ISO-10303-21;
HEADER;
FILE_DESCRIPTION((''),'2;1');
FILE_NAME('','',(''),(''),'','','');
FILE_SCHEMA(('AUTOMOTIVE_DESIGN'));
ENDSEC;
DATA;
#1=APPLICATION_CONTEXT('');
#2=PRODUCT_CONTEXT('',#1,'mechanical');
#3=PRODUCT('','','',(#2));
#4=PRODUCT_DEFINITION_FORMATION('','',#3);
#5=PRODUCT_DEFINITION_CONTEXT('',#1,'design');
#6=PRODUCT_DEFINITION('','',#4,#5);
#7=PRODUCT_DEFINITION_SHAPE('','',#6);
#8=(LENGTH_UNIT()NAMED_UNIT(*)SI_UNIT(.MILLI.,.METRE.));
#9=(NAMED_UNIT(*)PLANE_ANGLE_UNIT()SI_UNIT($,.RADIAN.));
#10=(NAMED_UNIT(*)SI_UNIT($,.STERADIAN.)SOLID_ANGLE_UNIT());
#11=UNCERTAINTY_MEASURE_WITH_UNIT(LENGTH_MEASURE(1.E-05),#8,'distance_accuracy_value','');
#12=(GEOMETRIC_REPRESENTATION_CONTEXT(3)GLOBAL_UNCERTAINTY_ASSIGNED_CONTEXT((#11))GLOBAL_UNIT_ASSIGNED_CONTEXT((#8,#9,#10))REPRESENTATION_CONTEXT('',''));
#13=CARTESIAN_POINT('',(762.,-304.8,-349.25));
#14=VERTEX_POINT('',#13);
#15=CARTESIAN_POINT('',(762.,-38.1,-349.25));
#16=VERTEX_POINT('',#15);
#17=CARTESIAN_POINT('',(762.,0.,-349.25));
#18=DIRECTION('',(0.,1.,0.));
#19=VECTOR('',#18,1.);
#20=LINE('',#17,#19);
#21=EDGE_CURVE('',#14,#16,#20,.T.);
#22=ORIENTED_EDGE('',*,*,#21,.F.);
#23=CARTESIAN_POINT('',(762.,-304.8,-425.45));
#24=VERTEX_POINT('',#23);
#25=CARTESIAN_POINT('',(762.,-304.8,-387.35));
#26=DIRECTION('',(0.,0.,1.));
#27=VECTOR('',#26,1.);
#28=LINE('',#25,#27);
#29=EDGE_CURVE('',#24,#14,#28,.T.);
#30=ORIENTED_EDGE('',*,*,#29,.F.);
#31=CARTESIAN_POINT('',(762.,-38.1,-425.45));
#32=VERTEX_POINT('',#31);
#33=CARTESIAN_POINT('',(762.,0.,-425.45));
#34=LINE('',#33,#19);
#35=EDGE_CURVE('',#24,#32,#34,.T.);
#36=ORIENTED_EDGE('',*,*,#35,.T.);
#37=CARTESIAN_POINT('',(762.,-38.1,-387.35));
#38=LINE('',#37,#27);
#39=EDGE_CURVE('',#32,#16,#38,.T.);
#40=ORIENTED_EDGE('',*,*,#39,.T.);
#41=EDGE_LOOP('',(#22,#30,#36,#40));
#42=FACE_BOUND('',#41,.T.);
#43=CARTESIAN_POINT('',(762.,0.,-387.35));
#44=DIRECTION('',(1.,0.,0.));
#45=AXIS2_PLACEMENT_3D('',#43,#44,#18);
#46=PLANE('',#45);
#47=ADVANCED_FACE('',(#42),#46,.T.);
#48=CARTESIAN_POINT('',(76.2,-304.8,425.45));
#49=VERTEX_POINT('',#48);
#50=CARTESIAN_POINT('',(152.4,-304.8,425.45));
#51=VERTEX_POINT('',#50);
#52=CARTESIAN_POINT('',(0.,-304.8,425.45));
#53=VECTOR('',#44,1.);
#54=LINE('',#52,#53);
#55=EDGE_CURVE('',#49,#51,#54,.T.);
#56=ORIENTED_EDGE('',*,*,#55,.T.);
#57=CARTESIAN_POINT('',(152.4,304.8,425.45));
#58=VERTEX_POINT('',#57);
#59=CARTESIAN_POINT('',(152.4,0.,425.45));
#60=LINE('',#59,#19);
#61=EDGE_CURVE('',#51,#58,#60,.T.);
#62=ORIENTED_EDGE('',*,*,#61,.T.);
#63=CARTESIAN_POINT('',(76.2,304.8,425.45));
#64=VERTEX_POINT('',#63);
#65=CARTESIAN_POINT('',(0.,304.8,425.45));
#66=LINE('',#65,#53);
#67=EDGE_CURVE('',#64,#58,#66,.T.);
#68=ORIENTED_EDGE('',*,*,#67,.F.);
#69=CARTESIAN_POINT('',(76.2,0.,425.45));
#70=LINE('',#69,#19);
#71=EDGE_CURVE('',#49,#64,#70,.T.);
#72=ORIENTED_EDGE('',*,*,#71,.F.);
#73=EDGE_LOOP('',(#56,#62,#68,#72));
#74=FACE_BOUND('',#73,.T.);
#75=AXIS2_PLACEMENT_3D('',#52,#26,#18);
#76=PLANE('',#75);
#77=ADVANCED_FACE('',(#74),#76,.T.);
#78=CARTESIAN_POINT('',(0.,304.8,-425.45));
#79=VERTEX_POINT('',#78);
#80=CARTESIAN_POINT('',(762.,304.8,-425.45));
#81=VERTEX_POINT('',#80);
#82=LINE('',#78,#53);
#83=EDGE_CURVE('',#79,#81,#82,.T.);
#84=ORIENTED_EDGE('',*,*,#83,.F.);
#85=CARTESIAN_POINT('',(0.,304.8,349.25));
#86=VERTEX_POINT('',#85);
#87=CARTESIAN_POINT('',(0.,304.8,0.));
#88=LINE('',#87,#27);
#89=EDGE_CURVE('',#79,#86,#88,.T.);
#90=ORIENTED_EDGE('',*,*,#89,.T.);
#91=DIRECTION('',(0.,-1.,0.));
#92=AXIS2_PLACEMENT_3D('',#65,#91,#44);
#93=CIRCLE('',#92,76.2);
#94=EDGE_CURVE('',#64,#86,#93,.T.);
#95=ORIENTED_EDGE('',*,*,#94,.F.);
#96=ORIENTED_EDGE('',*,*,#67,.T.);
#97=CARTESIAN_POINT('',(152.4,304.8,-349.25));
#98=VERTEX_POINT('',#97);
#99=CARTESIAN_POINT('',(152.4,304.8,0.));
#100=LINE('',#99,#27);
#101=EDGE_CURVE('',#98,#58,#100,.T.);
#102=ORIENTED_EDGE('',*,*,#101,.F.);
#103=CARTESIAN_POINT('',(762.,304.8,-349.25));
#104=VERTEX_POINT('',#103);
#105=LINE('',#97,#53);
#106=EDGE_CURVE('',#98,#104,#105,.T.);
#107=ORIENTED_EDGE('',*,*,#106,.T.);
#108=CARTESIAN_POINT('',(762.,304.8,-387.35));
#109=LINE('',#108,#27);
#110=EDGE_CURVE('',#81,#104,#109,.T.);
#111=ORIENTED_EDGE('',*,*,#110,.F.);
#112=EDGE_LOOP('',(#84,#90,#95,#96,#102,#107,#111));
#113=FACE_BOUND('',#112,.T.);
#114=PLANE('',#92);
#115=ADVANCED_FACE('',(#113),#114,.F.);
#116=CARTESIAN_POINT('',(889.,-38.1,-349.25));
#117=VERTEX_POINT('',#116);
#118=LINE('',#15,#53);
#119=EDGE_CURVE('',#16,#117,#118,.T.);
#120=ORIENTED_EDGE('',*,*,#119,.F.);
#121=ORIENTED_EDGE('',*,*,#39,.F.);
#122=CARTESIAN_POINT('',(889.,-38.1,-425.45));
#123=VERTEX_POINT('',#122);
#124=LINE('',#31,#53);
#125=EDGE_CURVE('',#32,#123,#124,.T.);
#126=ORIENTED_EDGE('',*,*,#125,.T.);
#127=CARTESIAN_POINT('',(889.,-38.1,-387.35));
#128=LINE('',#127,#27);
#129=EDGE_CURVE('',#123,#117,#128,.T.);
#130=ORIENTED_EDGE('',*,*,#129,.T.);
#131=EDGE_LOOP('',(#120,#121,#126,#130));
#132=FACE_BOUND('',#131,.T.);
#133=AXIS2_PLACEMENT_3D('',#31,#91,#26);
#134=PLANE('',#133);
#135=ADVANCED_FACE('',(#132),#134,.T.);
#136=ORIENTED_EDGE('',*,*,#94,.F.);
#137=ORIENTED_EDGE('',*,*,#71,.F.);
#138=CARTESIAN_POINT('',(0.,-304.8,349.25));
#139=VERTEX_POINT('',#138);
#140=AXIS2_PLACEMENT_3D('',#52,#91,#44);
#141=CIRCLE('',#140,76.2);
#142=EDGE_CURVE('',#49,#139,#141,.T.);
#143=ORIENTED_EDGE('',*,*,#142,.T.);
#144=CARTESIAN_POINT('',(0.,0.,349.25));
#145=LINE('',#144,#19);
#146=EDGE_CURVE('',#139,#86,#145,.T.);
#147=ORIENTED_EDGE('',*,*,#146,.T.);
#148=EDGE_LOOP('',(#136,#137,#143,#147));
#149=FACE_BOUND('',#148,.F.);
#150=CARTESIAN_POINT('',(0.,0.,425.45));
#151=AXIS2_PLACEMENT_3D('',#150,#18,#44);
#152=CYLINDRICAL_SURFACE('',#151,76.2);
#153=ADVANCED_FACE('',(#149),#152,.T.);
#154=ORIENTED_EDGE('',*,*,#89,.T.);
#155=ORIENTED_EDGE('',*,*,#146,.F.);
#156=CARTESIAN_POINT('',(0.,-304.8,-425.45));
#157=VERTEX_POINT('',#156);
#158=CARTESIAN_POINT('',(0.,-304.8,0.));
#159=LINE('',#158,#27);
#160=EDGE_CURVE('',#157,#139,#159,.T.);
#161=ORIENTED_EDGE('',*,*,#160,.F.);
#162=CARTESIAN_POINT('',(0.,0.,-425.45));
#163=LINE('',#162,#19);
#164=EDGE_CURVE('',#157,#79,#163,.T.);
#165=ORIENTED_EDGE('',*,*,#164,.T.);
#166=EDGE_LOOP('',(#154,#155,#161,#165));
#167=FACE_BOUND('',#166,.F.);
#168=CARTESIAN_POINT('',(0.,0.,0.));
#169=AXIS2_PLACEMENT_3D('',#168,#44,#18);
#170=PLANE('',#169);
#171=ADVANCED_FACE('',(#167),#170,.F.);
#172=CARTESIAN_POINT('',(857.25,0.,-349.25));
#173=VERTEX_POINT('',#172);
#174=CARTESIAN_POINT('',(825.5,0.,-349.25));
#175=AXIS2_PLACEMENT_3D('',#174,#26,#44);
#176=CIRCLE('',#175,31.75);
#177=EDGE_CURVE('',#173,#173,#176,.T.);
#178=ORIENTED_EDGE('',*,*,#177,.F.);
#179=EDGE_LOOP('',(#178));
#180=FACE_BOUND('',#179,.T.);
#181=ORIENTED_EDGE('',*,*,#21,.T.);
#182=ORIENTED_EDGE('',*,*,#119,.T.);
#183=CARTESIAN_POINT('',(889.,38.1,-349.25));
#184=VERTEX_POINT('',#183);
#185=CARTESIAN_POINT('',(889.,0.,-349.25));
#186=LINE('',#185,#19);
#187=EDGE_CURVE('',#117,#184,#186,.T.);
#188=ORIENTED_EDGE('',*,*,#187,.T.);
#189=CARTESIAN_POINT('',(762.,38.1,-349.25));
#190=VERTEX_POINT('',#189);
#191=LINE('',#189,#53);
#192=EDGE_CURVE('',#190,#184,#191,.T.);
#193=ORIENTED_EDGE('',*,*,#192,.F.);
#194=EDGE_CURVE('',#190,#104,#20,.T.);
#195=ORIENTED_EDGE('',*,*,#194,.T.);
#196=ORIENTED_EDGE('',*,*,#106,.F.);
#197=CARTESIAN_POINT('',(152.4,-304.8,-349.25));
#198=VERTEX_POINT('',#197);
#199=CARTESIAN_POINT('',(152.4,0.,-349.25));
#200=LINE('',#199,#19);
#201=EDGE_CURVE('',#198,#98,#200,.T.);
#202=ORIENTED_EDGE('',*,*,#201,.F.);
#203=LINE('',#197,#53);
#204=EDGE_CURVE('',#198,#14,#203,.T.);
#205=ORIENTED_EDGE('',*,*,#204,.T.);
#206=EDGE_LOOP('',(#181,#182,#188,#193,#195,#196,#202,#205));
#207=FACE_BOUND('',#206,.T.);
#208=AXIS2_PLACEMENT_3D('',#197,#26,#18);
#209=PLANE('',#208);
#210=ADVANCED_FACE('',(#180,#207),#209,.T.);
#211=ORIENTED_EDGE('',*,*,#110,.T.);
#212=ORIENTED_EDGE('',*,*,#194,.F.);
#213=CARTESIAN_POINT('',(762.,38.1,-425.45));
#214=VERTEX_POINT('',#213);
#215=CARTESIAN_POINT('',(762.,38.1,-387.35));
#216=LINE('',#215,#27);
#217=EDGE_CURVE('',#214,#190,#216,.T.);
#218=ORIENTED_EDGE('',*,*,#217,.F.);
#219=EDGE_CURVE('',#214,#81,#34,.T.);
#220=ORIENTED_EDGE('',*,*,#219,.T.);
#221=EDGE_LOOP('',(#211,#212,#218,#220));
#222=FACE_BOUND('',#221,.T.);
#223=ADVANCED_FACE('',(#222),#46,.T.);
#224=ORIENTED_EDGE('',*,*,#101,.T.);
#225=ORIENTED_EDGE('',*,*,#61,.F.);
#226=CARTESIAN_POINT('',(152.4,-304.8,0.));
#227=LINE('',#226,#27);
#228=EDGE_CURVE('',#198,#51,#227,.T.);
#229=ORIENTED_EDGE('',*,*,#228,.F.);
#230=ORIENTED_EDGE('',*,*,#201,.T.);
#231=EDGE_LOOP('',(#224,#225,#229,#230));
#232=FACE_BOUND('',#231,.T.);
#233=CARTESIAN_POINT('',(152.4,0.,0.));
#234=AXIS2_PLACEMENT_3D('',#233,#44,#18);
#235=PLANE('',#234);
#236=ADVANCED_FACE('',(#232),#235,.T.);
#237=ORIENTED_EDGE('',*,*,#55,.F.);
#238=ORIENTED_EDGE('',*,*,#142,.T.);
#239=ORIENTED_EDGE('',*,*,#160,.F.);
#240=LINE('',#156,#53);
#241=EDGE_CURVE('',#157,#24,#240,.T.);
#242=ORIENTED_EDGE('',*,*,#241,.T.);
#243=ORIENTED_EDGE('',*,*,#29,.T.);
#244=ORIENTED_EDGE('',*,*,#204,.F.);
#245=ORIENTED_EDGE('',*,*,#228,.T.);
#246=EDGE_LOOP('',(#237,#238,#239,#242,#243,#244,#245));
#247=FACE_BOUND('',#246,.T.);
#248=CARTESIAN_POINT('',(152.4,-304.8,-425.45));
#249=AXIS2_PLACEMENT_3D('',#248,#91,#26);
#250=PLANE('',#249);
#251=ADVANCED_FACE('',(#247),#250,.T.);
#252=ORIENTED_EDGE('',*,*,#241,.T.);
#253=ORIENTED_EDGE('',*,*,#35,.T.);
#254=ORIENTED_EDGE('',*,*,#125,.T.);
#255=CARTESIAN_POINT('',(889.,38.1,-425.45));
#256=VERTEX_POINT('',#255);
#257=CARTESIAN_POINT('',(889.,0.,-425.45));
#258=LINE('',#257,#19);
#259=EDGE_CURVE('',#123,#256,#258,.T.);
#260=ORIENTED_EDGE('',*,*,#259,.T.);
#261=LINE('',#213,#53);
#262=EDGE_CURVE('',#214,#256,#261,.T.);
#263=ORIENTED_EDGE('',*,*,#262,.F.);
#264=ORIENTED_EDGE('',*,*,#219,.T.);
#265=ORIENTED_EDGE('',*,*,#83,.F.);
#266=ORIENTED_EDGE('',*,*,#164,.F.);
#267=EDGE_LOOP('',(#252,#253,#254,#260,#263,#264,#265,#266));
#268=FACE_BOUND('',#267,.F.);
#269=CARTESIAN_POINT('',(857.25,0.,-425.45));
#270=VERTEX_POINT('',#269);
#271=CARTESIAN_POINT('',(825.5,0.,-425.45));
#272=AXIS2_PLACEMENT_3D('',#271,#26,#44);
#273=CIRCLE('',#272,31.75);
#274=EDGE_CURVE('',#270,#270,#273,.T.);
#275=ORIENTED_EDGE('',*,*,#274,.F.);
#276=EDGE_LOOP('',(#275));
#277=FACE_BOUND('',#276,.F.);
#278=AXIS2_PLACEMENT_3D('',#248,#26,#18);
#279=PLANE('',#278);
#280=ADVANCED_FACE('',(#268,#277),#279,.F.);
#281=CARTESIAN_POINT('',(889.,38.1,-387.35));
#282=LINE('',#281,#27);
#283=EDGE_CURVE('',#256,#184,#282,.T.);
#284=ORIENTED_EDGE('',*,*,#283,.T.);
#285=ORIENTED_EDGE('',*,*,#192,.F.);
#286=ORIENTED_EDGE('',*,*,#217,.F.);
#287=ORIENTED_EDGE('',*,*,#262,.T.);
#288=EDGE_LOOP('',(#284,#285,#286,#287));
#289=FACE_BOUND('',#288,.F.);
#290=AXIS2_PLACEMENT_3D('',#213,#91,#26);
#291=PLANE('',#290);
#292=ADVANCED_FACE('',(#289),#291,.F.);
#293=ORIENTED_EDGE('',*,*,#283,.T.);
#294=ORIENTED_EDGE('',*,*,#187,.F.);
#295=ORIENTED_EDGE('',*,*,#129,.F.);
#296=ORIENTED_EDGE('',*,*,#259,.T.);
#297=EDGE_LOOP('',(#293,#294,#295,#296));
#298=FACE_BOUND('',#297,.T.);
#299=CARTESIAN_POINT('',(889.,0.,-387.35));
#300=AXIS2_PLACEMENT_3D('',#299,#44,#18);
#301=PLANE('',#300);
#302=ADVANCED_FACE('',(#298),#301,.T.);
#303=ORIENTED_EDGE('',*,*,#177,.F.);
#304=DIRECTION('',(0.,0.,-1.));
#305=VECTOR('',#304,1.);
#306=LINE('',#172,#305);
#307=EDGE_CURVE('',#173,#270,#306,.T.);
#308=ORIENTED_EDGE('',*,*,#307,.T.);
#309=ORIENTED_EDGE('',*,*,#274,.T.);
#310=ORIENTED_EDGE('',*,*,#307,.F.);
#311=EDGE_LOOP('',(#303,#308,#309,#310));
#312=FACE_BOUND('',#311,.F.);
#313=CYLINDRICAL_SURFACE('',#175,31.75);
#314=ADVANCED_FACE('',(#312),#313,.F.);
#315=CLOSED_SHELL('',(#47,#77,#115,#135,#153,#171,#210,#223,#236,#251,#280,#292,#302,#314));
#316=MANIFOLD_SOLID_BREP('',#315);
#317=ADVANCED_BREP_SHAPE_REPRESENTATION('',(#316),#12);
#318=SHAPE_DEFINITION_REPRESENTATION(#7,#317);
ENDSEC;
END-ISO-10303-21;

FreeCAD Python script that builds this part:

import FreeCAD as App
import Part
import Sketcher

V = App.Vector
Q = App.Units.Quantity

doc = App.newDocument("Part")
body = doc.addObject("PartDesign::Body", "Body")

sketch1 = body.newObject("Sketcher::SketchObject", "Sketch")
sketch1.AttachmentSupport = (doc.getObject("YZ_Plane"), [""])
sketch1.MapMode = "FlatFace"
sketch1.addGeometry(Part.LineSegment(V(-305, 425, 0), V(-305, -425, 0)), False)
sketch1.addGeometry(Part.LineSegment(V(-305, -425, 0), V(305, -425, 0)), False)
sketch1.addGeometry(Part.LineSegment(V(305, -425, 0), V(305, 425, 0)), False)
sketch1.addGeometry(Part.LineSegment(V(305, 425, 0), V(-305, 425, 0)), False)
sketch1.addConstraint(Sketcher.Constraint("Coincident", 0, 2, 1, 1))
sketch1.addConstraint(Sketcher.Constraint("Coincident", 1, 2, 2, 1))
sketch1.addConstraint(Sketcher.Constraint("Coincident", 2, 2, 3, 1))
sketch1.addConstraint(Sketcher.Constraint("Coincident", 3, 2, 0, 1))
sketch1.addConstraint(Sketcher.Constraint("Vertical", 0))
sketch1.addConstraint(Sketcher.Constraint("Horizontal", 1))
sketch1.addConstraint(Sketcher.Constraint("Vertical", 2))
sketch1.addConstraint(Sketcher.Constraint("Horizontal", 3))
sketch1.addConstraint(Sketcher.Constraint("Symmetric", 0, 2, 2, 2, -1, 1))
sketch1.addConstraint(Sketcher.Constraint("DistanceX", 1, 1, 1, 2, Q("24 in")))
sketch1.addConstraint(Sketcher.Constraint("DistanceY", 0, 2, 0, 1, Q("33.5 in")))
pad1 = body.newObject("PartDesign::Pad", "Pad")
pad1.Profile = sketch1
pad1.Length = Q("6 in")

sketch2 = body.newObject("Sketcher::SketchObject", "Sketch001")
sketch2.AttachmentSupport = (doc.getObject("YZ_Plane"), [""])
sketch2.MapMode = "FlatFace"
sketch2.AttachmentOffset = App.Placement(V(0, 0, 6 * 25.4), App.Rotation())
sketch2.addGeometry(Part.LineSegment(V(-305, -349, 0), V(-305, -425, 0)), False)
sketch2.addGeometry(Part.LineSegment(V(-305, -425, 0), V(305, -425, 0)), False)
sketch2.addGeometry(Part.LineSegment(V(305, -425, 0), V(305, -349, 0)), False)
sketch2.addGeometry(Part.LineSegment(V(305, -349, 0), V(-305, -349, 0)), False)
sketch2.addConstraint(Sketcher.Constraint("Coincident", 0, 2, 1, 1))
sketch2.addConstraint(Sketcher.Constraint("Coincident", 1, 2, 2, 1))
sketch2.addConstraint(Sketcher.Constraint("Coincident", 2, 2, 3, 1))
sketch2.addConstraint(Sketcher.Constraint("Coincident", 3, 2, 0, 1))
sketch2.addConstraint(Sketcher.Constraint("Vertical", 0))
sketch2.addConstraint(Sketcher.Constraint("Horizontal", 1))
sketch2.addConstraint(Sketcher.Constraint("Vertical", 2))
sketch2.addConstraint(Sketcher.Constraint("Horizontal", 3))
sketch2.addConstraint(Sketcher.Constraint("DistanceX", 1, 1, 1, 2, Q("24 in")))
sketch2.addConstraint(Sketcher.Constraint("DistanceY", 0, 2, 0, 1, Q("3 in")))
sketch2.addConstraint(Sketcher.Constraint("DistanceX", 0, 2, -1, 1, Q("12 in")))
sketch2.addConstraint(Sketcher.Constraint("DistanceY", 0, 2, -1, 1, Q("16.75 in")))
pad2 = body.newObject("PartDesign::Pad", "Pad001")
pad2.Profile = sketch2
pad2.Length = Q("24 in")

sketch3 = body.newObject("Sketcher::SketchObject", "Sketch002")
sketch3.AttachmentSupport = (doc.getObject("YZ_Plane"), [""])
sketch3.MapMode = "FlatFace"
sketch3.AttachmentOffset = App.Placement(V(0, 0, 30 * 25.4), App.Rotation())
sketch3.addGeometry(Part.LineSegment(V(-38, -349, 0), V(-38, -425, 0)), False)
sketch3.addGeometry(Part.LineSegment(V(-38, -425, 0), V(38, -425, 0)), False)
sketch3.addGeometry(Part.LineSegment(V(38, -425, 0), V(38, -349, 0)), False)
sketch3.addGeometry(Part.LineSegment(V(38, -349, 0), V(-38, -349, 0)), False)
sketch3.addConstraint(Sketcher.Constraint("Coincident", 0, 2, 1, 1))
sketch3.addConstraint(Sketcher.Constraint("Coincident", 1, 2, 2, 1))
sketch3.addConstraint(Sketcher.Constraint("Coincident", 2, 2, 3, 1))
sketch3.addConstraint(Sketcher.Constraint("Coincident", 3, 2, 0, 1))
sketch3.addConstraint(Sketcher.Constraint("Vertical", 0))
sketch3.addConstraint(Sketcher.Constraint("Horizontal", 1))
sketch3.addConstraint(Sketcher.Constraint("Vertical", 2))
sketch3.addConstraint(Sketcher.Constraint("Horizontal", 3))
sketch3.addConstraint(Sketcher.Constraint("Equal", 3, 0))
sketch3.addConstraint(Sketcher.Constraint("DistanceX", 1, 1, 1, 2, Q("3 in")))
sketch3.addConstraint(Sketcher.Constraint("DistanceX", 0, 2, -1, 1, Q("1.5 in")))
sketch3.addConstraint(Sketcher.Constraint("DistanceY", 0, 2, -1, 1, Q("16.75 in")))
pad3 = body.newObject("PartDesign::Pad", "Pad002")
pad3.Profile = sketch3
pad3.Length = Q("5 in")

sketch4 = body.newObject("Sketcher::SketchObject", "Sketch003")
sketch4.AttachmentSupport = (doc.getObject("XY_Plane"), [""])
sketch4.MapMode = "FlatFace"
sketch4.AttachmentOffset = App.Placement(V(0, 0, -13.75 * 25.4), App.Rotation())
sketch4.addGeometry(Part.Circle(V(826, 0, 0), V(0, 0, 1), 32), False)
sketch4.addConstraint(Sketcher.Constraint("PointOnObject", 0, 3, -1))
sketch4.addConstraint(Sketcher.Constraint("Diameter", 0, Q("2.5 in")))
sketch4.addConstraint(Sketcher.Constraint("DistanceX", -1, 1, 0, 3, Q("32.5 in")))
pocket1 = body.newObject("PartDesign::Pocket", "Pocket")
pocket1.Profile = sketch4
pocket1.Length = Q("5.4 in")

sketch5 = body.newObject("Sketcher::SketchObject", "Sketch004")
sketch5.AttachmentSupport = (doc.getObject("XY_Plane"), [""])
sketch5.MapMode = "FlatFace"
sketch5.AttachmentOffset = App.Placement(V(0, 0, 16.75 * 25.4), App.Rotation())
sketch5.addGeometry(Part.LineSegment(V(0, 305, 0), V(0, -305, 0)), False)
sketch5.addGeometry(Part.LineSegment(V(0, -305, 0), V(76, -305, 0)), False)
sketch5.addGeometry(Part.LineSegment(V(76, -305, 0), V(76, 305, 0)), False)
sketch5.addGeometry(Part.LineSegment(V(76, 305, 0), V(0, 305, 0)), False)
sketch5.addConstraint(Sketcher.Constraint("Coincident", 0, 2, 1, 1))
sketch5.addConstraint(Sketcher.Constraint("Coincident", 1, 2, 2, 1))
sketch5.addConstraint(Sketcher.Constraint("Coincident", 2, 2, 3, 1))
sketch5.addConstraint(Sketcher.Constraint("Coincident", 3, 2, 0, 1))
sketch5.addConstraint(Sketcher.Constraint("Vertical", 0))
sketch5.addConstraint(Sketcher.Constraint("Horizontal", 1))
sketch5.addConstraint(Sketcher.Constraint("Vertical", 2))
sketch5.addConstraint(Sketcher.Constraint("Horizontal", 3))
sketch5.addConstraint(Sketcher.Constraint("Symmetric", 0, 2, 3, 2, -1, 1))
sketch5.addConstraint(Sketcher.Constraint("DistanceX", 1, 1, 1, 2, Q("3 in")))
sketch5.addConstraint(Sketcher.Constraint("DistanceY", 0, 2, 0, 1, Q("24 in")))
revolution = body.newObject("PartDesign::Revolution", "Revolution")
revolution.Profile = sketch5
revolution.ReferenceAxis = (sketch5, ["V_Axis"])
revolution.Angle = 360

doc.recompute()
